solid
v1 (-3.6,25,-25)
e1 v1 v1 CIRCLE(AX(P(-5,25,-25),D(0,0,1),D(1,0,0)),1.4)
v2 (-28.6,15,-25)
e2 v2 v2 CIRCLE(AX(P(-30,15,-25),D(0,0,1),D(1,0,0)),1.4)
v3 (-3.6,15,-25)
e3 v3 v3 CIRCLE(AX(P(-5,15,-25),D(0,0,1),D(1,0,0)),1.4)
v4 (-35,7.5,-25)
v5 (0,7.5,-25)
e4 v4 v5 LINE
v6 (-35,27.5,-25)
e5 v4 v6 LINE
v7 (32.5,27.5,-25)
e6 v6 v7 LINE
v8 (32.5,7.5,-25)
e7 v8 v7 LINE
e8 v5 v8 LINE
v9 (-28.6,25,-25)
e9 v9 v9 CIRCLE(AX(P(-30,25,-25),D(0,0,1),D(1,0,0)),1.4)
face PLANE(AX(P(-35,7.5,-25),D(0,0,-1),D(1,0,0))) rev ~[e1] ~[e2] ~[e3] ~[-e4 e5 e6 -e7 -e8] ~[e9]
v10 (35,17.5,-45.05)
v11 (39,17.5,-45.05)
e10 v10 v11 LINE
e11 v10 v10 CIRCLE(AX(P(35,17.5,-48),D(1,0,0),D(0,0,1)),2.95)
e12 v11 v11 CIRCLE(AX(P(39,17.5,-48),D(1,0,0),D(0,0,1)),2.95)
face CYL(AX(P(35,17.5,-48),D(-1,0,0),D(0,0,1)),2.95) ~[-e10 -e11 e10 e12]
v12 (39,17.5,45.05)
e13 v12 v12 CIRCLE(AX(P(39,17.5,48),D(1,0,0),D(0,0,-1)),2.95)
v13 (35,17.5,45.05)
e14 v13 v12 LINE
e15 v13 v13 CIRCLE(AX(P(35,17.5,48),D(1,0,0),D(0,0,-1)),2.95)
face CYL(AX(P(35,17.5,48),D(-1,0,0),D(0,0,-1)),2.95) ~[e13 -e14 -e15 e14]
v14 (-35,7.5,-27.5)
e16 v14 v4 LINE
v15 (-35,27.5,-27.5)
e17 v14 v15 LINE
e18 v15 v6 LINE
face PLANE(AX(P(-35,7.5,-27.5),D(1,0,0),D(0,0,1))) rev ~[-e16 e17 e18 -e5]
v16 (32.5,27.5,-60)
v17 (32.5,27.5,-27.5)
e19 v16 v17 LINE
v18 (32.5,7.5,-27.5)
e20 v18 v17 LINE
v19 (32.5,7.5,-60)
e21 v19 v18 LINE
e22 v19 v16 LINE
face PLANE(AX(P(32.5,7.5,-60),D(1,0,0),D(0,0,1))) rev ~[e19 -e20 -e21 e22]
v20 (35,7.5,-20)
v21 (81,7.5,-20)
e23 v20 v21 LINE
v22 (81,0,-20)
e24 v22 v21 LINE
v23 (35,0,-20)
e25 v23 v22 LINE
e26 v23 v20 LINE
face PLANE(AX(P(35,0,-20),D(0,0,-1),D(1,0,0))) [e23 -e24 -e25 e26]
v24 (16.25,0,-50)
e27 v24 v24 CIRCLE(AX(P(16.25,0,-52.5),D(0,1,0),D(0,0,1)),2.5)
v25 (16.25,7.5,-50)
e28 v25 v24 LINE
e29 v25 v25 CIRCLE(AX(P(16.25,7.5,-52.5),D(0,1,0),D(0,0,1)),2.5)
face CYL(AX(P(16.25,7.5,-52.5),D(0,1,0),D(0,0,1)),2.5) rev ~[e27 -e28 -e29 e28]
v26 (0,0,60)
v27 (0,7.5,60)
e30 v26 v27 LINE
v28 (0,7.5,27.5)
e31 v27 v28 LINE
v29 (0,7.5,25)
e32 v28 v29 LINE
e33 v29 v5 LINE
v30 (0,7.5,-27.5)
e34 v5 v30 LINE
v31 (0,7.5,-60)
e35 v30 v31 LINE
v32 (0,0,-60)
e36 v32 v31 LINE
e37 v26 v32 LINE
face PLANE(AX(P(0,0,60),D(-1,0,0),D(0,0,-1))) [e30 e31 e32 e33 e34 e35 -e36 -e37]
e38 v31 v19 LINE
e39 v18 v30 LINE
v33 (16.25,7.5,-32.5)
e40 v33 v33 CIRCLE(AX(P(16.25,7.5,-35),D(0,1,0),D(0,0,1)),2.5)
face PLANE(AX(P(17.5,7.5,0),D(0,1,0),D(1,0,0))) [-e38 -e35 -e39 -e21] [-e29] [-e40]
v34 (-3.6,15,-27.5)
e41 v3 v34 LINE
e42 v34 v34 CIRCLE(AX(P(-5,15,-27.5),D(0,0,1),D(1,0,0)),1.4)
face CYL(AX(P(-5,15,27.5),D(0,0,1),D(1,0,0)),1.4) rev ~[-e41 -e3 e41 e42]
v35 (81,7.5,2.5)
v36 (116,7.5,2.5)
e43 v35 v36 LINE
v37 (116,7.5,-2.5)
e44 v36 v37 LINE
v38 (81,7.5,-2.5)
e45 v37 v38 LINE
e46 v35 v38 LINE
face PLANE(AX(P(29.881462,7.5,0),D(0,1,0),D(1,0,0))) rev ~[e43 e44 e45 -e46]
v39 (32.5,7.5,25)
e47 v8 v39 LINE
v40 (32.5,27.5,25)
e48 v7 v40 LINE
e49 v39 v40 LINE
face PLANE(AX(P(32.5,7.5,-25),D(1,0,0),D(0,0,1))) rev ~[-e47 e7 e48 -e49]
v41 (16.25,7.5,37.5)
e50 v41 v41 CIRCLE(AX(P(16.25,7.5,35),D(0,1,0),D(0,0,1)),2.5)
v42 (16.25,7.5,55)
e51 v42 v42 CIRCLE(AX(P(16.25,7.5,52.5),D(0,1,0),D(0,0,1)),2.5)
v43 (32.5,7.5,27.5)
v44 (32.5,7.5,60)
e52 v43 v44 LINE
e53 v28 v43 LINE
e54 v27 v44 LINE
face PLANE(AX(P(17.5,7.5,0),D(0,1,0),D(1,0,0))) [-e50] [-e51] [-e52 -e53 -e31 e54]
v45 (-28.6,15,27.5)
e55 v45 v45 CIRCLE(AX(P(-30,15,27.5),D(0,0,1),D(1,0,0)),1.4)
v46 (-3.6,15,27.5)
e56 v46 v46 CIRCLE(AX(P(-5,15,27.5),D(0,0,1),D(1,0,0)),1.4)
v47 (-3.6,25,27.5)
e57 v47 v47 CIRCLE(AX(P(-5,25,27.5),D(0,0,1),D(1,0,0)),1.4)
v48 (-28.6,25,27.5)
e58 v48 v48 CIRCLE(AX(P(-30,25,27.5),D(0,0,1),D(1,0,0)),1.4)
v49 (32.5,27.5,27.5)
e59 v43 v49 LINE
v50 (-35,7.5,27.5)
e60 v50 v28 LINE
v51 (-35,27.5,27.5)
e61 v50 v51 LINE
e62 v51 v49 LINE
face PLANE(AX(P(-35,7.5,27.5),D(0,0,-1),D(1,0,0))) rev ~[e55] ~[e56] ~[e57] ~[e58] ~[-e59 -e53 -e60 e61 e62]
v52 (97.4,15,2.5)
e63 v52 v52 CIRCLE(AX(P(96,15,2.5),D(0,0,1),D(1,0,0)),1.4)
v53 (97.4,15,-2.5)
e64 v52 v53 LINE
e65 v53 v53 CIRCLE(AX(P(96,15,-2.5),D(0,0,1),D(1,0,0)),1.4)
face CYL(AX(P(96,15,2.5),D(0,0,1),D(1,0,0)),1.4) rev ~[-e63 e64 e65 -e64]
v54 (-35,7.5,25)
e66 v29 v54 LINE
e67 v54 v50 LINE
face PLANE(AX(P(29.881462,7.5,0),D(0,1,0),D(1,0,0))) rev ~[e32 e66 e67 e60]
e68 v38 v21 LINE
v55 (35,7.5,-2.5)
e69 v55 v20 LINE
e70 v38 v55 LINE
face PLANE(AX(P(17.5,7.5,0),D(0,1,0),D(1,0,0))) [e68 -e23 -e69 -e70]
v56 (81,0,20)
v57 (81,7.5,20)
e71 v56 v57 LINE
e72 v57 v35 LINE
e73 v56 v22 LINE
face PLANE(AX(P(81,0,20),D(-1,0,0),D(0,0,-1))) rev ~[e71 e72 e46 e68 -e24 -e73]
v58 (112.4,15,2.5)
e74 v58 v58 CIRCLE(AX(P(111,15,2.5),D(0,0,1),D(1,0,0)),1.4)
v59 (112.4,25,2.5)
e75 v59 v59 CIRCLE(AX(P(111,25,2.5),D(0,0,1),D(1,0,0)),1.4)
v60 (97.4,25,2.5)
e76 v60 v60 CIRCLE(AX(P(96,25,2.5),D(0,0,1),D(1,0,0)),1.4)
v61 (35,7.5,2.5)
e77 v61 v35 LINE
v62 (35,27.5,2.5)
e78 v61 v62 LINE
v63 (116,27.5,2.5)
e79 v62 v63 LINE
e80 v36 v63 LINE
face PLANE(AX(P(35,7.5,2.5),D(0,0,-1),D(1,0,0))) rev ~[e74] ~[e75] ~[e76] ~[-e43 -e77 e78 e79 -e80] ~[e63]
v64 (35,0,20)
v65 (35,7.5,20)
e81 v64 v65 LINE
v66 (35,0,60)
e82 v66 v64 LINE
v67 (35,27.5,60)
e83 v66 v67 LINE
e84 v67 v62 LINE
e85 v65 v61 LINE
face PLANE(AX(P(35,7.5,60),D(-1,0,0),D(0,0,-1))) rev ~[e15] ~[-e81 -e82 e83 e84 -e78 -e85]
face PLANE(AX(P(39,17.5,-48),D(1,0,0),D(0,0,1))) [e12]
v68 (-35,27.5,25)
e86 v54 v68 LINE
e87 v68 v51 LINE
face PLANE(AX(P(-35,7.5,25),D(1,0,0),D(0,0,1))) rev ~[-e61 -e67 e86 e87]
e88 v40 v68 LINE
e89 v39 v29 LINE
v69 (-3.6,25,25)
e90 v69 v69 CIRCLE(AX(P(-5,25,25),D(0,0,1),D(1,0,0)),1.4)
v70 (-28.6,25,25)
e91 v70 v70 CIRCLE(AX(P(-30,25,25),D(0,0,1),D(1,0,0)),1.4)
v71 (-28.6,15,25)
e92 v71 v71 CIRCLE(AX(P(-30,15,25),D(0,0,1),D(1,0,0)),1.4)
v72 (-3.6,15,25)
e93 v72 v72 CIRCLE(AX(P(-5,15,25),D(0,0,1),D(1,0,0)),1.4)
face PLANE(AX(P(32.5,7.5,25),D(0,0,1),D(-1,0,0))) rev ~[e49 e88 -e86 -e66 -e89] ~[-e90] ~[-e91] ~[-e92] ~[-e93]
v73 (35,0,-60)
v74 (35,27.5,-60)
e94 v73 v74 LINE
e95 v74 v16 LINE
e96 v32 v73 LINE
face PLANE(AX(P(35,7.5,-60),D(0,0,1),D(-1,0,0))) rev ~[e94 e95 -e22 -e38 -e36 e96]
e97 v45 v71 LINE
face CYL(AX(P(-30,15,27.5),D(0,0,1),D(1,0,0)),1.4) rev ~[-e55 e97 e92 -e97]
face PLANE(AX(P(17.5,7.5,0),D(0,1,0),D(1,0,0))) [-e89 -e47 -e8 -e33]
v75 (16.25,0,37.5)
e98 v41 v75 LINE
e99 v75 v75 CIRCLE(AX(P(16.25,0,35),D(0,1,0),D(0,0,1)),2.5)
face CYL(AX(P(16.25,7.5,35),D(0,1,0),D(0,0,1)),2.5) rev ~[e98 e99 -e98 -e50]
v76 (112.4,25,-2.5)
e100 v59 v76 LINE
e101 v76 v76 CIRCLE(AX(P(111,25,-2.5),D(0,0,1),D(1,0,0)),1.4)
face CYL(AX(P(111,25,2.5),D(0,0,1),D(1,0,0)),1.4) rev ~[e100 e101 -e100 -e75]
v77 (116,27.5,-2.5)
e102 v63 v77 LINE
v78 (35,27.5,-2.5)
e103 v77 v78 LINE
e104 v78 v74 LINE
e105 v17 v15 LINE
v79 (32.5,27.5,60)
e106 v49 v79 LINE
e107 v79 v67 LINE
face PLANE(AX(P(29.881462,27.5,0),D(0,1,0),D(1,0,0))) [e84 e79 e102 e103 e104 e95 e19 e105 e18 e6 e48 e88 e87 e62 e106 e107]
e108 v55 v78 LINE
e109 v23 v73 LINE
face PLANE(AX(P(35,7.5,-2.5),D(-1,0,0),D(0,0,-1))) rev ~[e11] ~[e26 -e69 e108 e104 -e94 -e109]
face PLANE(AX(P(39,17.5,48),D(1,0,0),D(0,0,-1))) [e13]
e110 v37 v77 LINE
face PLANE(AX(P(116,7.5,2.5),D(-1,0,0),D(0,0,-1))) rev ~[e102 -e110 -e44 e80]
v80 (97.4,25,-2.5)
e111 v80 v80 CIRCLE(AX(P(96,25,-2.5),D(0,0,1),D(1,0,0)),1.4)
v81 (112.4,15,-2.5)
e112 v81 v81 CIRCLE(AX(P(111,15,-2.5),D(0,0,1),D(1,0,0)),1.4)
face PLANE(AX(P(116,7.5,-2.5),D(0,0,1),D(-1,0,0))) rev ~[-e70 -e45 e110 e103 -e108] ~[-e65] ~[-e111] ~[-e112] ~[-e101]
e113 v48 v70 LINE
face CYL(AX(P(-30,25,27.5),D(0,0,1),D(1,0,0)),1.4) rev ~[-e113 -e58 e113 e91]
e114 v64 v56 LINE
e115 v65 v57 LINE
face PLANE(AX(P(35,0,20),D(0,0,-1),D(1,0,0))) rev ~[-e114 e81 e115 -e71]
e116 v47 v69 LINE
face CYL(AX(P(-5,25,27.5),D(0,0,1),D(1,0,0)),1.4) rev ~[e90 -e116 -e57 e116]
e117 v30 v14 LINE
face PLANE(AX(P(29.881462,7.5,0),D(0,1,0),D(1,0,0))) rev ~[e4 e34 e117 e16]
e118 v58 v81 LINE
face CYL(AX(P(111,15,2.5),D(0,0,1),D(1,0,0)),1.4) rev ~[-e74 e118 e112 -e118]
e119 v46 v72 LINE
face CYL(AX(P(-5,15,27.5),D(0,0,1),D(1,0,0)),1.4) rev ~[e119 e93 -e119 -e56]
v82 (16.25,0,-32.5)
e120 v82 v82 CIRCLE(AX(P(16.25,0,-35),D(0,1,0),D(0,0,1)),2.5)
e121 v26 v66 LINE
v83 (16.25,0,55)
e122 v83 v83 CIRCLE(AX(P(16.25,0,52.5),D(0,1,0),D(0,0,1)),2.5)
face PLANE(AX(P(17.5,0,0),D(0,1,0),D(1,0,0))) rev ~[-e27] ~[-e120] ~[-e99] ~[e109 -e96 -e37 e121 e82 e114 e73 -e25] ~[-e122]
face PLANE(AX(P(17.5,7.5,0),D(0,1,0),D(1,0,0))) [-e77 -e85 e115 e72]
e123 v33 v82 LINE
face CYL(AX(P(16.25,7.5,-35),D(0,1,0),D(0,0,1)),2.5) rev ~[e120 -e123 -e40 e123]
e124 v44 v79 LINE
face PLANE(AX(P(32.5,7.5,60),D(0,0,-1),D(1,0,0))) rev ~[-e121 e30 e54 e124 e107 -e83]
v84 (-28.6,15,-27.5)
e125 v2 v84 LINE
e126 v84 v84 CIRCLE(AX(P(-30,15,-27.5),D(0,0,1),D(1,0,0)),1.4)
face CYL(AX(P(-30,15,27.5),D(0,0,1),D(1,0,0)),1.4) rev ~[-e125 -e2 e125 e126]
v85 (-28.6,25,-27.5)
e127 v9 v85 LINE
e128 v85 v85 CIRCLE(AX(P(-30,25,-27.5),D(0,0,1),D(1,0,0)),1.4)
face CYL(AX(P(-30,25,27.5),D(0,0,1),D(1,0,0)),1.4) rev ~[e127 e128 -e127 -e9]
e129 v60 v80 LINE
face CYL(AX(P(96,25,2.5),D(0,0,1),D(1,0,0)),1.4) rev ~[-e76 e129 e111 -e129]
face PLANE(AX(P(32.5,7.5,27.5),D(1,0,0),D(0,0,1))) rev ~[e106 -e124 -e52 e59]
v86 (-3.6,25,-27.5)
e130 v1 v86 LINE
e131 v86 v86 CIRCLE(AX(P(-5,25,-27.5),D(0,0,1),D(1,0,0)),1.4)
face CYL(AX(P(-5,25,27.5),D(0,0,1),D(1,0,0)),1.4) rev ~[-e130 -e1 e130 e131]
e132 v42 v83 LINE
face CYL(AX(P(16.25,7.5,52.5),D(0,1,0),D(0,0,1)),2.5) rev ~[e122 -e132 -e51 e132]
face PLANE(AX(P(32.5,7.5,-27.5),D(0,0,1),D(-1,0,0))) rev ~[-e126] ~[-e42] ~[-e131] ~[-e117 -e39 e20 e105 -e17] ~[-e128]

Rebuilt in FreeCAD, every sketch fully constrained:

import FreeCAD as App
import Part
import Sketcher

V = App.Vector

doc = App.newDocument("Part")
body = doc.addObject("PartDesign::Body", "Body")

# Sketch on XZ plane
sketch1 = body.newObject("Sketcher::SketchObject", "Sketch")
sketch1.AttachmentSupport = (doc.getObject("XZ_Plane"), [""])
sketch1.MapMode = "FlatFace"
sketch1.addGeometry([
    Part.LineSegment(V(0, -60, 0), V(0, 60, 0)),  # 0
    Part.LineSegment(V(0, 60, 0), V(35, 60, 0)),  # 1
    Part.LineSegment(V(35, 60, 0), V(35, 20, 0)),  # 2
    Part.LineSegment(V(35, 20, 0), V(81, 20, 0)),  # 3
    Part.LineSegment(V(81, 20, 0), V(81, -20, 0)),  # 4
    Part.LineSegment(V(81, -20, 0), V(35, -20, 0)),  # 5
    Part.LineSegment(V(35, -20, 0), V(35, -60, 0)),  # 6
    Part.LineSegment(V(35, -60, 0), V(0, -60, 0)),  # 7
], False)
sketch1.addConstraint([
    Sketcher.Constraint("Coincident", 0, 2, 1, 1),
    Sketcher.Constraint("Coincident", 1, 2, 2, 1),
    Sketcher.Constraint("Coincident", 2, 2, 3, 1),
    Sketcher.Constraint("Coincident", 3, 2, 4, 1),
    Sketcher.Constraint("Coincident", 4, 2, 5, 1),
    Sketcher.Constraint("Coincident", 5, 2, 6, 1),
    Sketcher.Constraint("Coincident", 6, 2, 7, 1),
    Sketcher.Constraint("Coincident", 7, 2, 0, 1),
    Sketcher.Constraint("Vertical", 0),
    Sketcher.Constraint("Horizontal", 1),
    Sketcher.Constraint("Vertical", 2),
    Sketcher.Constraint("Horizontal", 3),
    Sketcher.Constraint("Vertical", 4),
    Sketcher.Constraint("Horizontal", 5),
    Sketcher.Constraint("Vertical", 6),
    Sketcher.Constraint("Horizontal", 7),
    Sketcher.Constraint("Symmetric", 0, 2, 7, 2, -1, 1),
    Sketcher.Constraint("Symmetric", 2, 2, 5, 2, -1),
    Sketcher.Constraint("Equal", 2, 4),
    Sketcher.Constraint("DistanceX", 1, 1, 1, 2, 35.0),
    Sketcher.Constraint("DistanceX", 3, 1, 3, 2, 46.0),
    Sketcher.Constraint("DistanceY", 0, 1, 0, 2, 120.0),
])
pad1 = body.newObject("PartDesign::Pad", "Pad")
pad1.Profile = sketch1
pad1.Length = 7.5
pad1.Reversed = True

# Sketch on XZ plane
sketch2 = body.newObject("Sketcher::SketchObject", "Sketch001")
sketch2.AttachmentSupport = (doc.getObject("XZ_Plane"), [""])
sketch2.MapMode = "FlatFace"
sketch2.AttachmentOffset = App.Placement(V(0, 0, -7.5), App.Rotation())
sketch2.addGeometry([
    Part.LineSegment(V(35, -2.5, 0), V(35, -60, 0)),  # 0
    Part.LineSegment(V(35, -60, 0), V(32.5, -60, 0)),  # 1
    Part.LineSegment(V(32.5, -60, 0), V(32.5, -27.5, 0)),  # 2
    Part.LineSegment(V(32.5, -27.5, 0), V(-35, -27.5, 0)),  # 3
    Part.LineSegment(V(-35, -27.5, 0), V(-35, -25, 0)),  # 4
    Part.LineSegment(V(-35, -25, 0), V(32.5, -25, 0)),  # 5
    Part.LineSegment(V(32.5, -25, 0), V(32.5, 25, 0)),  # 6
    Part.LineSegment(V(32.5, 25, 0), V(-35, 25, 0)),  # 7
    Part.LineSegment(V(-35, 25, 0), V(-35, 27.5, 0)),  # 8
    Part.LineSegment(V(-35, 27.5, 0), V(32.5, 27.5, 0)),  # 9
    Part.LineSegment(V(32.5, 27.5, 0), V(32.5, 60, 0)),  # 10
    Part.LineSegment(V(32.5, 60, 0), V(35, 60, 0)),  # 11
    Part.LineSegment(V(35, 60, 0), V(35, 2.5, 0)),  # 12
    Part.LineSegment(V(35, 2.5, 0), V(116, 2.5, 0)),  # 13
    Part.LineSegment(V(116, 2.5, 0), V(116, -2.5, 0)),  # 14
    Part.LineSegment(V(116, -2.5, 0), V(35, -2.5, 0)),  # 15
], False)
sketch2.addConstraint([
    Sketcher.Constraint("Coincident", 0, 2, 1, 1),
    Sketcher.Constraint("Coincident", 1, 2, 2, 1),
    Sketcher.Constraint("Coincident", 2, 2, 3, 1),
    Sketcher.Constraint("Coincident", 3, 2, 4, 1),
    Sketcher.Constraint("Coincident", 4, 2, 5, 1),
    Sketcher.Constraint("Coincident", 5, 2, 6, 1),
    Sketcher.Constraint("Coincident", 6, 2, 7, 1),
    Sketcher.Constraint("Coincident", 7, 2, 8, 1),
    Sketcher.Constraint("Coincident", 8, 2, 9, 1),
    Sketcher.Constraint("Coincident", 9, 2, 10, 1),
    Sketcher.Constraint("Coincident", 10, 2, 11, 1),
    Sketcher.Constraint("Coincident", 11, 2, 12, 1),
    Sketcher.Constraint("Coincident", 12, 2, 13, 1),
    Sketcher.Constraint("Coincident", 13, 2, 14, 1),
    Sketcher.Constraint("Coincident", 14, 2, 15, 1),
    Sketcher.Constraint("Coincident", 15, 2, 0, 1),
    Sketcher.Constraint("Vertical", 0),
    Sketcher.Constraint("Horizontal", 1),
    Sketcher.Constraint("Vertical", 2),
    Sketcher.Constraint("Horizontal", 3),
    Sketcher.Constraint("Vertical", 4),
    Sketcher.Constraint("Horizontal", 5),
    Sketcher.Constraint("Vertical", 6),
    Sketcher.Constraint("Horizontal", 7),
    Sketcher.Constraint("Vertical", 8),
    Sketcher.Constraint("Horizontal", 9),
    Sketcher.Constraint("Vertical", 10),
    Sketcher.Constraint("Horizontal", 11),
    Sketcher.Constraint("Vertical", 12),
    Sketcher.Constraint("Horizontal", 13),
    Sketcher.Constraint("Vertical", 14),
    Sketcher.Constraint("Horizontal", 15),
    Sketcher.Constraint("Symmetric", 4, 2, 7, 2, -1),
    Sketcher.Constraint("Symmetric", 2, 2, 9, 2, -1),
    Sketcher.Constraint("Symmetric", 0, 2, 11, 2, -1),
    Sketcher.Constraint("Vertical", 2, 2, 5, 2),
    Sketcher.Constraint("Equal", 11, 4),
    Sketcher.Constraint("Equal", 0, 12),
    Sketcher.Constraint("DistanceX", 13, 1, 13, 2, 81.0),
    Sketcher.Constraint("DistanceY", 6, 1, 6, 2, 50.0),
    Sketcher.Constraint("DistanceY", 14, 2, 14, 1, 5.0),
    Sketcher.Constraint("DistanceX", 1, 2, 1, 1, 2.5),
    Sketcher.Constraint("DistanceX", 3, 2, 3, 1, 67.5),
    Sketcher.Constraint("DistanceY", 0, 2, 0, 1, 57.5),
    Sketcher.Constraint("DistanceX", -1, 1, 0, 2, 35.0),
])
pad2 = body.newObject("PartDesign::Pad", "Pad001")
pad2.Profile = sketch2
pad2.Length = 20
pad2.Reversed = True

# Sketch on XY plane
sketch3 = body.newObject("Sketcher::SketchObject", "Sketch002")
sketch3.AttachmentSupport = (doc.getObject("XY_Plane"), [""])
sketch3.MapMode = "FlatFace"
sketch3.AttachmentOffset = App.Placement(V(0, 0, 2.5), App.Rotation())
sketch3.addGeometry([
    Part.Circle(V(111, 25, 0), V(0, 0, 1), 1.4),
    Part.Circle(V(111, 15, 0), V(0, 0, 1), 1.4),
    Part.Circle(V(96, 15, 0), V(0, 0, 1), 1.4),
    Part.Circle(V(96, 25, 0), V(0, 0, 1), 1.4),
], False)
sketch3.addConstraint([
    Sketcher.Constraint("Equal", 0, 1),
    Sketcher.Constraint("Equal", 1, 2),
    Sketcher.Constraint("Equal", 2, 3),
    Sketcher.Constraint("Horizontal", 1, 3, 2, 3),
    Sketcher.Constraint("Horizontal", 0, 3, 3, 3),
    Sketcher.Constraint("Vertical", 0, 3, 1, 3),
    Sketcher.Constraint("Vertical", 2, 3, 3, 3),
    Sketcher.Constraint("Diameter", 0, 2.8),
    Sketcher.Constraint("DistanceX", -1, 1, 0, 3, 111.0),
    Sketcher.Constraint("DistanceY", -1, 1, 0, 3, 25.0),
    Sketcher.Constraint("DistanceY", -1, 1, 1, 3, 15.0),
    Sketcher.Constraint("DistanceX", -1, 1, 2, 3, 96.0),
])
pocket1 = body.newObject("PartDesign::Pocket", "Pocket")
pocket1.Profile = sketch3
pocket1.Length = 5

# Sketch on YZ plane
sketch4 = body.newObject("Sketcher::SketchObject", "Sketch003")
sketch4.AttachmentSupport = (doc.getObject("YZ_Plane"), [""])
sketch4.MapMode = "FlatFace"
sketch4.AttachmentOffset = App.Placement(V(0, 0, 35), App.Rotation())
sketch4.addGeometry([
    Part.Circle(V(17.5, 48, 0), V(0, 0, 1), 3),
    Part.Circle(V(17.5, -48, 0), V(0, 0, 1), 3),
], False)
sketch4.addConstraint([
    Sketcher.Constraint("Equal", 0, 1),
    Sketcher.Constraint("Symmetric", 0, 3, 1, 3, -1),
    Sketcher.Constraint("Diameter", 0, 5.9),
    Sketcher.Constraint("DistanceY", -1, 1, 0, 3, 48.0),
    Sketcher.Constraint("DistanceX", -1, 1, 0, 3, 17.5),
])
pad3 = body.newObject("PartDesign::Pad", "Pad002")
pad3.Profile = sketch4
pad3.Length = 4

# Sketch on XY plane
sketch5 = body.newObject("Sketcher::SketchObject", "Sketch004")
sketch5.AttachmentSupport = (doc.getObject("XY_Plane"), [""])
sketch5.MapMode = "FlatFace"
sketch5.AttachmentOffset = App.Placement(V(0, 0, 27.5), App.Rotation())
sketch5.addGeometry([
    Part.Circle(V(-30, 25, 0), V(0, 0, 1), 1.4),
    Part.Circle(V(-5, 25, 0), V(0, 0, 1), 1.4),
    Part.Circle(V(-30, 15, 0), V(0, 0, 1), 1.4),
    Part.Circle(V(-5, 15, 0), V(0, 0, 1), 1.4),
], False)
sketch5.addConstraint([
    Sketcher.Constraint("Equal", 0, 1),
    Sketcher.Constraint("Equal", 1, 2),
    Sketcher.Constraint("Equal", 2, 3),
    Sketcher.Constraint("Horizontal", 0, 3, 1, 3),
    Sketcher.Constraint("Horizontal", 2, 3, 3, 3),
    Sketcher.Constraint("Vertical", 0, 3, 2, 3),
    Sketcher.Constraint("Vertical", 1, 3, 3, 3),
    Sketcher.Constraint("Diameter", 0, 2.8),
    Sketcher.Constraint("DistanceX", 0, 3, -1, 1, 30.0),
    Sketcher.Constraint("DistanceY", -1, 1, 0, 3, 25.0),
    Sketcher.Constraint("DistanceX", 1, 3, -1, 1, 5.0),
    Sketcher.Constraint("DistanceY", -1, 1, 2, 3, 15.0),
])
pocket2 = body.newObject("PartDesign::Pocket", "Pocket001")
pocket2.Profile = sketch5
pocket2.Length = 60

# Sketch on XZ plane
sketch6 = body.newObject("Sketcher::SketchObject", "Sketch005")
sketch6.AttachmentSupport = (doc.getObject("XZ_Plane"), [""])
sketch6.MapMode = "FlatFace"
sketch6.AttachmentOffset = App.Placement(V(0, 0, -7.5), App.Rotation())
sketch6.addGeometry([
    Part.Circle(V(16.2, -52.5, 0), V(0, 0, 1), 2.5),
    Part.Circle(V(16.2, -35, 0), V(0, 0, 1), 2.5),
    Part.Circle(V(16.2, 35, 0), V(0, 0, 1), 2.5),
    Part.Circle(V(16.2, 52.5, 0), V(0, 0, 1), 2.5),
], False)
sketch6.addConstraint([
    Sketcher.Constraint("Equal", 0, 1),
    Sketcher.Constraint("Equal", 1, 2),
    Sketcher.Constraint("Equal", 2, 3),
    Sketcher.Constraint("Symmetric", 1, 3, 2, 3, -1),
    Sketcher.Constraint("Symmetric", 0, 3, 3, 3, -1),
    Sketcher.Constraint("Vertical", 0, 3, 1, 3),
    Sketcher.Constraint("Diameter", 0, 5.0),
    Sketcher.Constraint("DistanceY", 1, 3, -1, 1, 35.0),
    Sketcher.Constraint("DistanceY", 0, 3, 3, 3, 105.0),
    Sketcher.Constraint("DistanceX", -1, 1, 0, 3, 16.25),
])
pocket3 = body.newObject("PartDesign::Pocket", "Pocket002")
pocket3.Profile = sketch6
pocket3.Length = 10
pocket3.Reversed = True

doc.recompute()
